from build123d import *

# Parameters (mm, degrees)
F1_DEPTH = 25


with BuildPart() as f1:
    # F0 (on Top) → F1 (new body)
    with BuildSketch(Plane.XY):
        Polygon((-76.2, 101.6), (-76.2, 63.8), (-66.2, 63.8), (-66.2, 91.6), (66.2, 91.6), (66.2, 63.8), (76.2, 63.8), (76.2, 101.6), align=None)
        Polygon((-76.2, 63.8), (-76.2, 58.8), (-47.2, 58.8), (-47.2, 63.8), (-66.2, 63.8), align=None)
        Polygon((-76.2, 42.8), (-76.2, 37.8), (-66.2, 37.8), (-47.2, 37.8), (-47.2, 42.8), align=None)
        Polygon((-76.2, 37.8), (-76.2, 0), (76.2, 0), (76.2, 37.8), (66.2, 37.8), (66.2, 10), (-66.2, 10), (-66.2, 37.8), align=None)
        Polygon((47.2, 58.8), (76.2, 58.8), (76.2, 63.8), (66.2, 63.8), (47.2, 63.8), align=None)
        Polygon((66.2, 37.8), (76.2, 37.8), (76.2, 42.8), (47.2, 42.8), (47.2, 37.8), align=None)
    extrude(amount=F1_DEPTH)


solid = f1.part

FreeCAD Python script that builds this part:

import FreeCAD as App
import Part
import Sketcher
from FreeCAD import Vector

doc = App.newDocument("Part")
body = doc.addObject("PartDesign::Body", "Body")
body.AllowCompound = True

sketch1 = doc.addObject("Sketcher::SketchObject", "Sketch")
body.addObject(sketch1)
sketch1.AttachmentSupport = (doc.XY_Plane, [""])
sketch1.MapMode = "FlatFace"
sketch1.addGeometry([
    Part.LineSegment(Vector(-76, 102, 0), Vector(-76, 59, 0)),
    Part.LineSegment(Vector(-76, 59, 0), Vector(-47, 59, 0)),
    Part.LineSegment(Vector(-47, 59, 0), Vector(-47, 64, 0)),
    Part.LineSegment(Vector(-47, 64, 0), Vector(-66, 64, 0)),
    Part.LineSegment(Vector(-66, 64, 0), Vector(-66, 92, 0)),
    Part.LineSegment(Vector(-66, 92, 0), Vector(66, 92, 0)),
    Part.LineSegment(Vector(66, 92, 0), Vector(66, 64, 0)),
    Part.LineSegment(Vector(66, 64, 0), Vector(47, 64, 0)),
    Part.LineSegment(Vector(47, 64, 0), Vector(47, 59, 0)),
    Part.LineSegment(Vector(47, 59, 0), Vector(76, 59, 0)),
    Part.LineSegment(Vector(76, 59, 0), Vector(76, 102, 0)),
    Part.LineSegment(Vector(76, 102, 0), Vector(-76, 102, 0)),
    Part.LineSegment(Vector(-76, 43, 0), Vector(-76, 0, 0)),
    Part.LineSegment(Vector(-76, 0, 0), Vector(76, 0, 0)),
    Part.LineSegment(Vector(76, 0, 0), Vector(76, 43, 0)),
    Part.LineSegment(Vector(76, 43, 0), Vector(47, 43, 0)),
    Part.LineSegment(Vector(47, 43, 0), Vector(47, 38, 0)),
    Part.LineSegment(Vector(47, 38, 0), Vector(66, 38, 0)),
    Part.LineSegment(Vector(66, 38, 0), Vector(66, 10, 0)),
    Part.LineSegment(Vector(66, 10, 0), Vector(-66, 10, 0)),
    Part.LineSegment(Vector(-66, 10, 0), Vector(-66, 38, 0)),
    Part.LineSegment(Vector(-66, 38, 0), Vector(-47, 38, 0)),
    Part.LineSegment(Vector(-47, 38, 0), Vector(-47, 43, 0)),
    Part.LineSegment(Vector(-47, 43, 0), Vector(-76, 43, 0)),
], False)
sketch1.addConstraint([
    Sketcher.Constraint("Coincident", 0, 2, 1, 1),
    Sketcher.Constraint("Coincident", 1, 2, 2, 1),
    Sketcher.Constraint("Coincident", 2, 2, 3, 1),
    Sketcher.Constraint("Coincident", 3, 2, 4, 1),
    Sketcher.Constraint("Coincident", 4, 2, 5, 1),
    Sketcher.Constraint("Coincident", 5, 2, 6, 1),
    Sketcher.Constraint("Coincident", 6, 2, 7, 1),
    Sketcher.Constraint("Coincident", 7, 2, 8, 1),
    Sketcher.Constraint("Coincident", 8, 2, 9, 1),
    Sketcher.Constraint("Coincident", 9, 2, 10, 1),
    Sketcher.Constraint("Coincident", 10, 2, 11, 1),
    Sketcher.Constraint("Coincident", 11, 2, 0, 1),
    Sketcher.Constraint("Coincident", 12, 2, 13, 1),
    Sketcher.Constraint("Coincident", 13, 2, 14, 1),
    Sketcher.Constraint("Coincident", 14, 2, 15, 1),
    Sketcher.Constraint("Coincident", 15, 2, 16, 1),
    Sketcher.Constraint("Coincident", 16, 2, 17, 1),
    Sketcher.Constraint("Coincident", 17, 2, 18, 1),
    Sketcher.Constraint("Coincident", 18, 2, 19, 1),
    Sketcher.Constraint("Coincident", 19, 2, 20, 1),
    Sketcher.Constraint("Coincident", 20, 2, 21, 1),
    Sketcher.Constraint("Coincident", 21, 2, 22, 1),
    Sketcher.Constraint("Coincident", 22, 2, 23, 1),
    Sketcher.Constraint("Coincident", 23, 2, 12, 1),
    Sketcher.Constraint("Vertical", 0),
    Sketcher.Constraint("Horizontal", 1),
    Sketcher.Constraint("Vertical", 2),
    Sketcher.Constraint("Horizontal", 3),
    Sketcher.Constraint("Vertical", 4),
    Sketcher.Constraint("Horizontal", 5),
    Sketcher.Constraint("Vertical", 6),
    Sketcher.Constraint("Horizontal", 7),
    Sketcher.Constraint("Vertical", 8),
    Sketcher.Constraint("Horizontal", 9),
    Sketcher.Constraint("Vertical", 10),
    Sketcher.Constraint("Horizontal", 11),
    Sketcher.Constraint("Vertical", 12),
    Sketcher.Constraint("Horizontal", 13),
    Sketcher.Constraint("Vertical", 14),
    Sketcher.Constraint("Horizontal", 15),
    Sketcher.Constraint("Vertical", 16),
    Sketcher.Constraint("Horizontal", 17),
    Sketcher.Constraint("Vertical", 18),
    Sketcher.Constraint("Horizontal", 19),
    Sketcher.Constraint("Vertical", 20),
    Sketcher.Constraint("Horizontal", 21),
    Sketcher.Constraint("Vertical", 22),
    Sketcher.Constraint("Horizontal", 23),
    Sketcher.Constraint("Symmetric", 12, 2, 13, 2, -1, 1),
    Sketcher.Constraint("Symmetric", 3, 2, 6, 2, -2),
    Sketcher.Constraint("Symmetric", 1, 2, 8, 2, -2),
    Sketcher.Constraint("Symmetric", 17, 2, 20, 2, -2),
    Sketcher.Constraint("Symmetric", 15, 2, 22, 2, -2),
    Sketcher.Constraint("Vertical", 11, 2, 12, 2),
    Sketcher.Constraint("Vertical", 10, 2, 13, 2),
    Sketcher.Constraint("Vertical", 8, 2, 15, 2),
    Sketcher.Constraint("Vertical", 6, 2, 17, 2),
    Sketcher.Constraint("Equal", 10, 12),
    Sketcher.Constraint("Equal", 8, 16),
    Sketcher.Constraint("Equal", 6, 18),
    Sketcher.Constraint("DistanceX", 1, 1, 1, 2, 29.0),
    Sketcher.Constraint("DistanceX", 3, 2, 3, 1, 19.0),
    Sketcher.Constraint("DistanceY", 2, 1, 2, 2, 5.0),
    Sketcher.Constraint("DistanceX", 5, 1, 5, 2, 132.4),
    Sketcher.Constraint("DistanceY", 0, 2, 0, 1, 42.8),
    Sketcher.Constraint("DistanceY", 4, 1, 4, 2, 27.8),
    Sketcher.Constraint("DistanceY", 14, 2, 9, 2, 16.0),
])
pad1 = doc.addObject("PartDesign::Pad", "Pad")
body.addObject(pad1)
pad1.Profile = sketch1
pad1.Length = 25

doc.recompute()
